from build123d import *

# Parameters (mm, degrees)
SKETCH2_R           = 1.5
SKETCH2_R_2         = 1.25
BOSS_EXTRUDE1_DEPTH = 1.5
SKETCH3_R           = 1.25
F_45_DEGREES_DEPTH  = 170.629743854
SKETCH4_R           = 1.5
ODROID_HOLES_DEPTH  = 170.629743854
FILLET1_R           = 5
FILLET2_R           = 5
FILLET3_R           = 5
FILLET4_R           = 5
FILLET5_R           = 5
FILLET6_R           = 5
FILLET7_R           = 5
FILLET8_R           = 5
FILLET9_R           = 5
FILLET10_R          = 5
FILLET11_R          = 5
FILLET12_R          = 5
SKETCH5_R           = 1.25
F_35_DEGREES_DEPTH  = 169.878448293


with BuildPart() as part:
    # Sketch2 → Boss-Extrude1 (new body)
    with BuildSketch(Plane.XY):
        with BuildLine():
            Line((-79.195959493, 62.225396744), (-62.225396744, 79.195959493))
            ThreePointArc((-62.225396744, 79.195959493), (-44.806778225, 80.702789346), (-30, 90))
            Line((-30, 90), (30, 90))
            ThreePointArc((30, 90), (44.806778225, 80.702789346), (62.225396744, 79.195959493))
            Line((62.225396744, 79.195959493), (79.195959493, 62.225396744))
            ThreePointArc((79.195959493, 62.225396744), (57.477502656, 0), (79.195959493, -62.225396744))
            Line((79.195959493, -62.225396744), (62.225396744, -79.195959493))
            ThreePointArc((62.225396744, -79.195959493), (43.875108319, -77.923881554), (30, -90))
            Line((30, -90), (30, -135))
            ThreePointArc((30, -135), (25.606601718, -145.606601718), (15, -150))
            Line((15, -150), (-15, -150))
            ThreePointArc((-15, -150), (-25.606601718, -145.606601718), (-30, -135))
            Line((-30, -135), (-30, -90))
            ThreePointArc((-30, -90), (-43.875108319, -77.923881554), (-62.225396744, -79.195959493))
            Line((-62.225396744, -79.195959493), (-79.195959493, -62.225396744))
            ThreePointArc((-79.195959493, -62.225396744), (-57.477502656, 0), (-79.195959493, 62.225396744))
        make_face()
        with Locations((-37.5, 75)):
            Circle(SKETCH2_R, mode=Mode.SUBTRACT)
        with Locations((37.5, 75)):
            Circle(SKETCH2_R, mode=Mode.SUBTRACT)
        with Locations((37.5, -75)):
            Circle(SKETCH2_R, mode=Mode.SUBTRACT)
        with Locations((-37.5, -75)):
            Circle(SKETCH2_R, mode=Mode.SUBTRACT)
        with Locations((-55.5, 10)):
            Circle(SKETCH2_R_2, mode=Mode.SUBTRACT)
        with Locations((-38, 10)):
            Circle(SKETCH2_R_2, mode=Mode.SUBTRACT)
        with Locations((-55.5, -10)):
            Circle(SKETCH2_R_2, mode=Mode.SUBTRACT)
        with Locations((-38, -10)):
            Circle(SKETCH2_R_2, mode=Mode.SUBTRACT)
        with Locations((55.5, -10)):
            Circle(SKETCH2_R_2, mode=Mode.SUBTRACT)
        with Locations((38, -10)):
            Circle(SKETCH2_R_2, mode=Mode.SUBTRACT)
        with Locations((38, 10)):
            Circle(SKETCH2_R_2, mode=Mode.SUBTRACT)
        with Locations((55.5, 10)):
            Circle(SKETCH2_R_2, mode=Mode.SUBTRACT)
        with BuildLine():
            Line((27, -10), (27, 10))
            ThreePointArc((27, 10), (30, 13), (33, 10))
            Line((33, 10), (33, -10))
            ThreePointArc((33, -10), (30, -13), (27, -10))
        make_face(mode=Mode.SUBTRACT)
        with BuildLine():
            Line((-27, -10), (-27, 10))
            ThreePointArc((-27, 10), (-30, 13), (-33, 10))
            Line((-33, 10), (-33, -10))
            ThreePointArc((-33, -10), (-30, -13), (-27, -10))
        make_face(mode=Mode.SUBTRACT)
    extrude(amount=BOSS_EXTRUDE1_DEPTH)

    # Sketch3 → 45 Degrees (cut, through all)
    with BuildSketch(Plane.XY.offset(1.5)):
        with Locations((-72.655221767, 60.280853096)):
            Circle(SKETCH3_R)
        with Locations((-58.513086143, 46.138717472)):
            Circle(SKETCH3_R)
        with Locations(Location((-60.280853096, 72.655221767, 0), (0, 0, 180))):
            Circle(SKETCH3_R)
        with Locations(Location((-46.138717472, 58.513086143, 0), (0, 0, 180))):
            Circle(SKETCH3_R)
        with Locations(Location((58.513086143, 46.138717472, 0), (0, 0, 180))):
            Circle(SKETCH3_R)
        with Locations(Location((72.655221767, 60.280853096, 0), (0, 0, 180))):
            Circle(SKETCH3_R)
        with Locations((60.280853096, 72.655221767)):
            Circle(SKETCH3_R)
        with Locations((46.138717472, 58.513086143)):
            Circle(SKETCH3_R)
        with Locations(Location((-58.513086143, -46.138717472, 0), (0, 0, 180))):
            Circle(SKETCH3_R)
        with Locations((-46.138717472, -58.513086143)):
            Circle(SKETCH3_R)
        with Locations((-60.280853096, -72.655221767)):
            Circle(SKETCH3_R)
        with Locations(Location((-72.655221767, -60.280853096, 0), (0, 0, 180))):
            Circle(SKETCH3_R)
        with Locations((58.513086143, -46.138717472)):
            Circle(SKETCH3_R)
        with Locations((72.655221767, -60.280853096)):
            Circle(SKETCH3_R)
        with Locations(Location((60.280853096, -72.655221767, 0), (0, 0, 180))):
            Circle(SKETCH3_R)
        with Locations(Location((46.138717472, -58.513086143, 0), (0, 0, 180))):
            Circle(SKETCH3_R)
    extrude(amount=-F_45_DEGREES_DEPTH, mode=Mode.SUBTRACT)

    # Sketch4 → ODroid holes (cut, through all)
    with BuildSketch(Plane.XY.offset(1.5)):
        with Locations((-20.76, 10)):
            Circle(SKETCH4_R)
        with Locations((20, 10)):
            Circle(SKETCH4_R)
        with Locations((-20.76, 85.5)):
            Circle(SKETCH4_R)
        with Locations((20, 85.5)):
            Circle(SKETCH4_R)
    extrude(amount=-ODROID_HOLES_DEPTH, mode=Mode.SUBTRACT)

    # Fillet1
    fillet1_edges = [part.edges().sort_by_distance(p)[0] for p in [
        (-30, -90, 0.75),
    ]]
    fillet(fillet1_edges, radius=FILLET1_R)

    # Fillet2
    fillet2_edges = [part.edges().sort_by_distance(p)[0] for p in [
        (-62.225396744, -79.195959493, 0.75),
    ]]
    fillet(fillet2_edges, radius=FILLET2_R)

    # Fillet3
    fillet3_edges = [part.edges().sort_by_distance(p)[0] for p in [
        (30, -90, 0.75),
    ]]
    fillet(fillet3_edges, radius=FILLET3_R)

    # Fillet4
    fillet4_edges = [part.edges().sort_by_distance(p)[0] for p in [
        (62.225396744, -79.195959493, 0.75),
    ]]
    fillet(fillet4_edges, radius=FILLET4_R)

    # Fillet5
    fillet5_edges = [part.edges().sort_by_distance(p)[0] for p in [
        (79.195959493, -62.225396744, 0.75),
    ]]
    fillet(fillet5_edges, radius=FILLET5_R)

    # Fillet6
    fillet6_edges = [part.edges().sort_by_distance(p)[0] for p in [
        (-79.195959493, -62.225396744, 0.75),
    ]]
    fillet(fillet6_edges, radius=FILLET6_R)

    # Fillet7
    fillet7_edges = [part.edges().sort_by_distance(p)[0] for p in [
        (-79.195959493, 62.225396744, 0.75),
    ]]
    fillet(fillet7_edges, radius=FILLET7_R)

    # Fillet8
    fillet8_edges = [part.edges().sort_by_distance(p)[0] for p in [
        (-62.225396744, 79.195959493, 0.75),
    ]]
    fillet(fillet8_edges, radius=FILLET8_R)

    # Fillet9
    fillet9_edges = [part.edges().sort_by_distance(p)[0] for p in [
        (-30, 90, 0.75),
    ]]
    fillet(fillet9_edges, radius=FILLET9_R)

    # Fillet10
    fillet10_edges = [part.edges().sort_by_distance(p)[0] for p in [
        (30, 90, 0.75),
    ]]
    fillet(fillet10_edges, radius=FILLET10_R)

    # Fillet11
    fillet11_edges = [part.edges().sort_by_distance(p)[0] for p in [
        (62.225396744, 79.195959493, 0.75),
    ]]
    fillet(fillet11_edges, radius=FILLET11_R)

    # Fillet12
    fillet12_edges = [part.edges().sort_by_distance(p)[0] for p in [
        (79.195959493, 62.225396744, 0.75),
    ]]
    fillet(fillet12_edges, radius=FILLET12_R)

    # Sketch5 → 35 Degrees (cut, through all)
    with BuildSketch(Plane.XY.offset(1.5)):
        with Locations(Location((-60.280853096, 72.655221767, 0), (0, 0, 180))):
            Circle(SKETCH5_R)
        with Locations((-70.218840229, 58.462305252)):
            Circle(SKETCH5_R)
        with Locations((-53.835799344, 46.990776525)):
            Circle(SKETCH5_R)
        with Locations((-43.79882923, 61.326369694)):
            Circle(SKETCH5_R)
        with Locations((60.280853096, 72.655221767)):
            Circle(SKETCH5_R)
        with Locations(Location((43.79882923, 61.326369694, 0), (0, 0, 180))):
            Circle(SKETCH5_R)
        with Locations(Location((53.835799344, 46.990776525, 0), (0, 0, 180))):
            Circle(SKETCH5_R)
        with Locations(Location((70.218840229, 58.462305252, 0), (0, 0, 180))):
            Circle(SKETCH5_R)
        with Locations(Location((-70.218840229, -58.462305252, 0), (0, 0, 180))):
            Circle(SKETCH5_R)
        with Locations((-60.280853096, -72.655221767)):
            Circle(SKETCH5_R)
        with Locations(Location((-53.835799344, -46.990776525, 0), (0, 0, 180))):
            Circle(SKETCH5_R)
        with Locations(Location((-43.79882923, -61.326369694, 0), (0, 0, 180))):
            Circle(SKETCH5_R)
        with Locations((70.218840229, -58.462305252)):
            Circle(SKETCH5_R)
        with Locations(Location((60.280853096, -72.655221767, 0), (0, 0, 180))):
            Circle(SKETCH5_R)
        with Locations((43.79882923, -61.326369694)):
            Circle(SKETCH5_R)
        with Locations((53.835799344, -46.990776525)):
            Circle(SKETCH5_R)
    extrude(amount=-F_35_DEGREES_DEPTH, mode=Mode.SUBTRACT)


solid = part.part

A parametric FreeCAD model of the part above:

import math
import FreeCAD as App
import Part
import Sketcher

V = App.Vector
Q = App.Units.Quantity


def edges_at(feature, points):
    """Names of the edges that pass closest to the given points."""
    edges = feature.Shape.Edges
    near = lambda p: min(range(len(edges)), key=lambda i: edges[i].distToShape(Part.Vertex(*p))[0])
    return sorted({f"Edge{near(p) + 1}" for p in points})

doc = App.newDocument("Part")
body = doc.addObject("PartDesign::Body", "Body")

sketch1 = doc.addObject("Sketcher::SketchObject", "Sketch")
body.addObject(sketch1)
sketch1.AttachmentSupport = (doc.XY_Plane, [""])
sketch1.MapMode = "FlatFace"
sketch1.addGeometry(Part.LineSegment(V(-62.2, 79.2, 0), V(-79.2, 62.2, 0)), False)
sketch1.addGeometry(Part.ArcOfCircle(Part.Circle(V(-157.5, 0, 0), V(0, 0, 1), 100), math.radians(-38), math.radians(38)), False)
sketch1.addGeometry(Part.LineSegment(V(-79.2, -62.2, 0), V(-62.2, -79.2, 0)), False)
sketch1.addGeometry(Part.ArcOfCircle(Part.Circle(V(-51.5, -100.7, 0), V(0, 0, 1), 24), math.radians(26), math.radians(116)), False)
sketch1.addGeometry(Part.LineSegment(V(-30, -90, 0), V(-30, -135, 0)), False)
sketch1.addGeometry(Part.ArcOfCircle(Part.Circle(V(-15, -135, 0), V(0, 0, 1), 15), math.radians(180), math.radians(270)), False)
sketch1.addGeometry(Part.LineSegment(V(-15, -150, 0), V(15, -150, 0)), False)
sketch1.addGeometry(Part.ArcOfCircle(Part.Circle(V(15, -135, 0), V(0, 0, 1), 15), math.radians(-90), math.radians(0)), False)
sketch1.addGeometry(Part.LineSegment(V(30, -135, 0), V(30, -90, 0)), False)
sketch1.addGeometry(Part.ArcOfCircle(Part.Circle(V(51.5, -100.7, 0), V(0, 0, 1), 24), math.radians(64), math.radians(154)), False)
sketch1.addGeometry(Part.LineSegment(V(62.2, -79.2, 0), V(79.2, -62.2, 0)), False)
sketch1.addGeometry(Part.ArcOfCircle(Part.Circle(V(157.5, 0, 0), V(0, 0, 1), 100), math.radians(142), math.radians(218)), False)
sketch1.addGeometry(Part.LineSegment(V(79.2, 62.2, 0), V(62.2, 79.2, 0)), False)
sketch1.addGeometry(Part.ArcOfCircle(Part.Circle(V(56.6, 116, 0), V(0, 0, 1), 37.2), math.radians(-136), math.radians(-81)), False)
sketch1.addGeometry(Part.LineSegment(V(30, 90, 0), V(-30, 90, 0)), False)
sketch1.addGeometry(Part.ArcOfCircle(Part.Circle(V(-56.6, 116, 0), V(0, 0, 1), 37.2), math.radians(-99), math.radians(-44)), False)
sketch1.addGeometry(Part.Circle(V(37.5, -75, 0), V(0, 0, 1), 1.5), False)
sketch1.addGeometry(Part.Circle(V(55.5, -10, 0), V(0, 0, 1), 1.2), False)
sketch1.addGeometry(Part.Circle(V(38, -10, 0), V(0, 0, 1), 1.2), False)
sketch1.addGeometry(Part.Circle(V(-37.5, -75, 0), V(0, 0, 1), 1.5), False)
sketch1.addGeometry(Part.Circle(V(-38, -10, 0), V(0, 0, 1), 1.2), False)
sketch1.addGeometry(Part.Circle(V(-55.5, -10, 0), V(0, 0, 1), 1.2), False)
sketch1.addGeometry(Part.Circle(V(55.5, 10, 0), V(0, 0, 1), 1.2), False)
sketch1.addGeometry(Part.LineSegment(V(27, -10, 0), V(27, 10, 0)), False)
sketch1.addGeometry(Part.ArcOfCircle(Part.Circle(V(30, 10, 0), V(0, 0, 1), 3), math.radians(0), math.radians(180)), False)
sketch1.addGeometry(Part.LineSegment(V(33, 10, 0), V(33, -10, 0)), False)
sketch1.addGeometry(Part.ArcOfCircle(Part.Circle(V(30, -10, 0), V(0, 0, 1), 3), math.radians(180), math.radians(360)), False)
sketch1.addGeometry(Part.Circle(V(38, 10, 0), V(0, 0, 1), 1.2), False)
sketch1.addGeometry(Part.Circle(V(37.5, 75, 0), V(0, 0, 1), 1.5), False)
sketch1.addGeometry(Part.ArcOfCircle(Part.Circle(V(-30, -10, 0), V(0, 0, 1), 3), math.radians(180), math.radians(360)), False)
sketch1.addGeometry(Part.LineSegment(V(-33, -10, 0), V(-33, 10, 0)), False)
sketch1.addGeometry(Part.ArcOfCircle(Part.Circle(V(-30, 10, 0), V(0, 0, 1), 3), math.radians(0), math.radians(180)), False)
sketch1.addGeometry(Part.LineSegment(V(-27, 10, 0), V(-27, -10, 0)), False)
sketch1.addGeometry(Part.Circle(V(-38, 10, 0), V(0, 0, 1), 1.2), False)
sketch1.addGeometry(Part.Circle(V(-55.5, 10, 0), V(0, 0, 1), 1.2), False)
sketch1.addGeometry(Part.Circle(V(-37.5, 75, 0), V(0, 0, 1), 1.5), False)
sketch1.addConstraint(Sketcher.Constraint("Coincident", 0, 2, 1, 2))
sketch1.addConstraint(Sketcher.Constraint("Coincident", 1, 1, 2, 1))
sketch1.addConstraint(Sketcher.Constraint("Coincident", 2, 2, 3, 2))
sketch1.addConstraint(Sketcher.Constraint("Coincident", 3, 1, 4, 1))
sketch1.addConstraint(Sketcher.Constraint("Tangent", 4, 2, 5, 1))
sketch1.addConstraint(Sketcher.Constraint("Tangent", 5, 2, 6, 1))
sketch1.addConstraint(Sketcher.Constraint("Tangent", 6, 2, 7, 1))
sketch1.addConstraint(Sketcher.Constraint("Tangent", 7, 2, 8, 1))
sketch1.addConstraint(Sketcher.Constraint("Coincident", 8, 2, 9, 2))
sketch1.addConstraint(Sketcher.Constraint("Coincident", 9, 1, 10, 1))
sketch1.addConstraint(Sketcher.Constraint("Coincident", 10, 2, 11, 2))
sketch1.addConstraint(Sketcher.Constraint("Coincident", 11, 1, 12, 1))
sketch1.addConstraint(Sketcher.Constraint("Coincident", 12, 2, 13, 2))
sketch1.addConstraint(Sketcher.Constraint("Coincident", 13, 1, 14, 1))
sketch1.addConstraint(Sketcher.Constraint("Coincident", 14, 2, 15, 2))
sketch1.addConstraint(Sketcher.Constraint("Coincident", 15, 1, 0, 1))
sketch1.addConstraint(Sketcher.Constraint("Tangent", 23, 2, 24, 2))
sketch1.addConstraint(Sketcher.Constraint("Tangent", 24, 1, 25, 1))
sketch1.addConstraint(Sketcher.Constraint("Tangent", 25, 2, 26, 2))
sketch1.addConstraint(Sketcher.Constraint("Tangent", 26, 1, 23, 1))
sketch1.addConstraint(Sketcher.Constraint("Tangent", 29, 1, 30, 1))
sketch1.addConstraint(Sketcher.Constraint("Tangent", 30, 2, 31, 2))
sketch1.addConstraint(Sketcher.Constraint("Tangent", 31, 1, 32, 1))
sketch1.addConstraint(Sketcher.Constraint("Tangent", 32, 2, 29, 2))
sketch1.addConstraint(Sketcher.Constraint("Vertical", 4))
sketch1.addConstraint(Sketcher.Constraint("Horizontal", 6))
sketch1.addConstraint(Sketcher.Constraint("Vertical", 8))
sketch1.addConstraint(Sketcher.Constraint("Horizontal", 14))
sketch1.addConstraint(Sketcher.Constraint("Vertical", 23))
sketch1.addConstraint(Sketcher.Constraint("Vertical", 25))
sketch1.addConstraint(Sketcher.Constraint("Vertical", 30))
sketch1.addConstraint(Sketcher.Constraint("Vertical", 32))
sketch1.addConstraint(Sketcher.Constraint("Equal", 5, 7))
sketch1.addConstraint(Sketcher.Constraint("Equal", 3, 9))
sketch1.addConstraint(Sketcher.Constraint("Equal", 1, 11))
sketch1.addConstraint(Sketcher.Constraint("Equal", 13, 15))
sketch1.addConstraint(Sketcher.Constraint("Equal", 17, 18))
sketch1.addConstraint(Sketcher.Constraint("Equal", 16, 19))
sketch1.addConstraint(Sketcher.Constraint("Equal", 18, 20))
sketch1.addConstraint(Sketcher.Constraint("Equal", 20, 21))
sketch1.addConstraint(Sketcher.Constraint("Equal", 21, 22))
sketch1.addConstraint(Sketcher.Constraint("Equal", 22, 27))
sketch1.addConstraint(Sketcher.Constraint("Equal", 19, 28))
sketch1.addConstraint(Sketcher.Constraint("Equal", 26, 29))
sketch1.addConstraint(Sketcher.Constraint("Equal", 27, 33))
sketch1.addConstraint(Sketcher.Constraint("Equal", 33, 34))
sketch1.addConstraint(Sketcher.Constraint("Equal", 28, 35))
sketch1.addConstraint(Sketcher.Constraint("Symmetric", 1, 3, 11, 3, -1, 1))
sketch1.addConstraint(Sketcher.Constraint("Symmetric", 21, 3, 22, 3, -1, 1))
sketch1.addConstraint(Sketcher.Constraint("Symmetric", 20, 3, 27, 3, -1, 1))
sketch1.addConstraint(Sketcher.Constraint("Symmetric", 19, 3, 28, 3, -1, 1))
sketch1.addConstraint(Sketcher.Constraint("Symmetric", 24, 3, 29, 3, -1, 1))
sketch1.addConstraint(Sketcher.Constraint("Symmetric", 18, 3, 33, 3, -1, 1))
sketch1.addConstraint(Sketcher.Constraint("Symmetric", 17, 3, 34, 3, -1, 1))
sketch1.addConstraint(Sketcher.Constraint("Symmetric", 16, 3, 35, 3, -1, 1))
sketch1.addConstraint(Sketcher.Constraint("Symmetric", 2, 2, 12, 2, -1, 1))
sketch1.addConstraint(Sketcher.Constraint("Symmetric", 3, 1, 13, 1, -1, 1))
sketch1.addConstraint(Sketcher.Constraint("Symmetric", 8, 2, 14, 2, -1, 1))
sketch1.addConstraint(Sketcher.Constraint("Symmetric", 9, 1, 15, 1, -1, 1))
sketch1.addConstraint(Sketcher.Constraint("Symmetric", 3, 3, 9, 3, -2))
sketch1.addConstraint(Sketcher.Constraint("Symmetric", 16, 3, 19, 3, -2))
sketch1.addConstraint(Sketcher.Constraint("Symmetric", 18, 3, 20, 3, -2))
sketch1.addConstraint(Sketcher.Constraint("Symmetric", 17, 3, 21, 3, -2))
sketch1.addConstraint(Sketcher.Constraint("Symmetric", 1, 1, 10, 2, -2))
sketch1.addConstraint(Sketcher.Constraint("Perpendicular", 0, 2))
sketch1.addConstraint(Sketcher.Constraint("Perpendicular", 2, 10))
sketch1.addConstraint(Sketcher.Constraint("Perpendicular", 10, 12))
sketch1.addConstraint(Sketcher.Constraint("Horizontal", 13, 3, 15, 3))
sketch1.addConstraint(Sketcher.Constraint("Horizontal", 17, 3, 18, 3))
sketch1.addConstraint(Sketcher.Constraint("Horizontal", 22, 3, 24, 3))
sketch1.addConstraint(Sketcher.Constraint("Horizontal", 21, 3, 26, 3))
sketch1.addConstraint(Sketcher.Constraint("Horizontal", 27, 3, 31, 3))
sketch1.addConstraint(Sketcher.Constraint("Vertical", 31, 3, 3, 1))
sketch1.addConstraint(Sketcher.Constraint("Diameter", 16, Q("3 mm")))
sketch1.addConstraint(Sketcher.Constraint("Radius", 1, Q("100 mm")))
sketch1.addConstraint(Sketcher.Constraint("Radius", 5, Q("15 mm")))
sketch1.addConstraint(Sketcher.Constraint("Radius", 24, Q("3 mm")))
sketch1.addConstraint(Sketcher.Constraint("Diameter", 17, Q("2.5 mm")))
sketch1.addConstraint(Sketcher.Constraint("DistanceX", 6, 1, 6, 2, Q("30 mm")))
sketch1.addConstraint(Sketcher.Constraint("DistanceY", 4, 2, 4, 1, Q("45 mm")))
sketch1.addConstraint(Sketcher.Constraint("DistanceY", 23, 1, 23, 2, Q("20 mm")))
sketch1.addConstraint(Sketcher.Constraint("Distance", 0, Q("24 mm")))
sketch1.addConstraint(Sketcher.Constraint("DistanceY", 5, 3, -1, 1, Q("135 mm")))
sketch1.addConstraint(Sketcher.Constraint("DistanceY", 16, 3, -1, 1, Q("75 mm")))
sketch1.addConstraint(Sketcher.Constraint("DistanceX", -1, 1, 18, 3, Q("38 mm")))
sketch1.addConstraint(Sketcher.Constraint("DistanceX", 16, 3, 17, 3, Q("18 mm")))
sketch1.addConstraint(Sketcher.Constraint("DistanceX", 19, 3, 16, 3, Q("75 mm")))
sketch1.addConstraint(Sketcher.Constraint("Radius", 3, Q("24.033346 mm")))
sketch1.addConstraint(Sketcher.Constraint("Radius", 13, Q("37.202804 mm")))
sketch1.addConstraint(Sketcher.Constraint("DistanceX", 3, 3, -1, 1, Q("51.514719 mm")))
sketch1.addConstraint(Sketcher.Constraint("DistanceX", 0, 2, -1, 1, Q("79.195959 mm")))
pad1 = doc.addObject("PartDesign::Pad", "Pad")
body.addObject(pad1)
pad1.Profile = sketch1
pad1.Length = 1.5

sketch2 = doc.addObject("Sketcher::SketchObject", "Sketch001")
body.addObject(sketch2)
sketch2.AttachmentSupport = (doc.XY_Plane, [""])
sketch2.MapMode = "FlatFace"
sketch2.AttachmentOffset = App.Placement(V(0, 0, 1.5), App.Rotation())
sketch2.addGeometry(Part.Circle(V(-72.7, 60.3, 0), V(0, 0, 1), 1.2), False)
sketch2.addGeometry(Part.Circle(V(-58.5, 46.1, 0), V(0, 0, 1), 1.2), False)
sketch2.addGeometry(Part.Circle(V(-60.3, 72.7, 0), V(0, 0, 1), 1.2), False)
sketch2.addGeometry(Part.Circle(V(-46.1, 58.5, 0), V(0, 0, 1), 1.2), False)
sketch2.addGeometry(Part.Circle(V(58.5, 46.1, 0), V(0, 0, 1), 1.2), False)
sketch2.addGeometry(Part.Circle(V(72.7, 60.3, 0), V(0, 0, 1), 1.2), False)
sketch2.addGeometry(Part.Circle(V(60.3, 72.7, 0), V(0, 0, 1), 1.2), False)
sketch2.addGeometry(Part.Circle(V(46.1, 58.5, 0), V(0, 0, 1), 1.2), False)
sketch2.addGeometry(Part.Circle(V(-58.5, -46.1, 0), V(0, 0, 1), 1.2), False)
sketch2.addGeometry(Part.Circle(V(-46.1, -58.5, 0), V(0, 0, 1), 1.2), False)
sketch2.addGeometry(Part.Circle(V(-60.3, -72.7, 0), V(0, 0, 1), 1.2), False)
sketch2.addGeometry(Part.Circle(V(-72.7, -60.3, 0), V(0, 0, 1), 1.2), False)
sketch2.addGeometry(Part.Circle(V(58.5, -46.1, 0), V(0, 0, 1), 1.2), False)
sketch2.addGeometry(Part.Circle(V(72.7, -60.3, 0), V(0, 0, 1), 1.2), False)
sketch2.addGeometry(Part.Circle(V(60.3, -72.7, 0), V(0, 0, 1), 1.2), False)
sketch2.addGeometry(Part.Circle(V(46.1, -58.5, 0), V(0, 0, 1), 1.2), False)
sketch2.addConstraint(Sketcher.Constraint("Equal", 0, 1))
sketch2.addConstraint(Sketcher.Constraint("Equal", 1, 2))
sketch2.addConstraint(Sketcher.Constraint("Equal", 2, 3))
sketch2.addConstraint(Sketcher.Constraint("Equal", 3, 4))
sketch2.addConstraint(Sketcher.Constraint("Equal", 4, 5))
sketch2.addConstraint(Sketcher.Constraint("Equal", 5, 6))
sketch2.addConstraint(Sketcher.Constraint("Equal", 6, 7))
sketch2.addConstraint(Sketcher.Constraint("Equal", 7, 8))
sketch2.addConstraint(Sketcher.Constraint("Equal", 8, 9))
sketch2.addConstraint(Sketcher.Constraint("Equal", 9, 10))
sketch2.addConstraint(Sketcher.Constraint("Equal", 10, 11))
sketch2.addConstraint(Sketcher.Constraint("Equal", 11, 12))
sketch2.addConstraint(Sketcher.Constraint("Equal", 12, 13))
sketch2.addConstraint(Sketcher.Constraint("Equal", 13, 14))
sketch2.addConstraint(Sketcher.Constraint("Equal", 14, 15))
sketch2.addConstraint(Sketcher.Constraint("Symmetric", 4, 3, 8, 3, -1, 1))
sketch2.addConstraint(Sketcher.Constraint("Symmetric", 7, 3, 9, 3, -1, 1))
sketch2.addConstraint(Sketcher.Constraint("Symmetric", 6, 3, 10, 3, -1, 1))
sketch2.addConstraint(Sketcher.Constraint("Symmetric", 5, 3, 11, 3, -1, 1))
sketch2.addConstraint(Sketcher.Constraint("Symmetric", 1, 3, 12, 3, -1, 1))
sketch2.addConstraint(Sketcher.Constraint("Symmetric", 0, 3, 13, 3, -1, 1))
sketch2.addConstraint(Sketcher.Constraint("Symmetric", 2, 3, 14, 3, -1, 1))
sketch2.addConstraint(Sketcher.Constraint("Symmetric", 3, 3, 15, 3, -1, 1))
sketch2.addConstraint(Sketcher.Constraint("Symmetric", 1, 3, 4, 3, -2))
sketch2.addConstraint(Sketcher.Constraint("Symmetric", 0, 3, 5, 3, -2))
sketch2.addConstraint(Sketcher.Constraint("Symmetric", 2, 3, 6, 3, -2))
sketch2.addConstraint(Sketcher.Constraint("Symmetric", 3, 3, 7, 3, -2))
sketch2.addConstraint(Sketcher.Constraint("Diameter", 0, Q("2.5 mm")))
sketch2.addConstraint(Sketcher.Constraint("DistanceX", 0, 3, -1, 1, Q("72.655222 mm")))
sketch2.addConstraint(Sketcher.Constraint("DistanceY", -1, 1, 2, 3, Q("72.655222 mm")))
sketch2.addConstraint(Sketcher.Constraint("DistanceX", 0, 3, 2, 3, Q("12.374369 mm")))
sketch2.addConstraint(Sketcher.Constraint("DistanceY", 0, 3, 2, 3, Q("12.374369 mm")))
sketch2.addConstraint(Sketcher.Constraint("DistanceX", 1, 3, 3, 3, Q("12.374369 mm")))
sketch2.addConstraint(Sketcher.Constraint("DistanceY", 1, 3, 3, 3, Q("12.374369 mm")))
sketch2.addConstraint(Sketcher.Constraint("DistanceX", 2, 3, 4, 3, Q("118.793939 mm")))
sketch2.addConstraint(Sketcher.Constraint("DistanceY", 8, 3, 0, 3, Q("106.419571 mm")))
pocket1 = doc.addObject("PartDesign::Pocket", "Pocket")
body.addObject(pocket1)
pocket1.Profile = sketch2
pocket1.Type = "ThroughAll"

sketch3 = doc.addObject("Sketcher::SketchObject", "Sketch002")
body.addObject(sketch3)
sketch3.AttachmentSupport = (doc.XY_Plane, [""])
sketch3.MapMode = "FlatFace"
sketch3.AttachmentOffset = App.Placement(V(0, 0, 1.5), App.Rotation())
sketch3.addGeometry(Part.Circle(V(-20.8, 10, 0), V(0, 0, 1), 1.5), False)
sketch3.addGeometry(Part.Circle(V(20, 10, 0), V(0, 0, 1), 1.5), False)
sketch3.addGeometry(Part.Circle(V(-20.8, 85.5, 0), V(0, 0, 1), 1.5), False)
sketch3.addGeometry(Part.Circle(V(20, 85.5, 0), V(0, 0, 1), 1.5), False)
sketch3.addConstraint(Sketcher.Constraint("Equal", 0, 1))
sketch3.addConstraint(Sketcher.Constraint("Equal", 1, 2))
sketch3.addConstraint(Sketcher.Constraint("Equal", 2, 3))
sketch3.addConstraint(Sketcher.Constraint("Horizontal", 0, 3, 1, 3))
sketch3.addConstraint(Sketcher.Constraint("Horizontal", 2, 3, 3, 3))
sketch3.addConstraint(Sketcher.Constraint("Vertical", 0, 3, 2, 3))
sketch3.addConstraint(Sketcher.Constraint("Vertical", 1, 3, 3, 3))
sketch3.addConstraint(Sketcher.Constraint("Diameter", 0, Q("3 mm")))
sketch3.addConstraint(Sketcher.Constraint("DistanceY", -1, 1, 0, 3, Q("10 mm")))
sketch3.addConstraint(Sketcher.Constraint("DistanceX", -1, 1, 1, 3, Q("20 mm")))
sketch3.addConstraint(Sketcher.Constraint("DistanceY", -1, 1, 2, 3, Q("85.5 mm")))
sketch3.addConstraint(Sketcher.Constraint("DistanceX", 0, 3, -1, 1, Q("20.76 mm")))
pocket2 = doc.addObject("PartDesign::Pocket", "Pocket001")
body.addObject(pocket2)
pocket2.Profile = sketch3
pocket2.Type = "ThroughAll"
doc.recompute()

fillet = doc.addObject("PartDesign::Fillet", "Fillet")
body.addObject(fillet)
fillet.Base = (pocket2, edges_at(pocket2, [(-30, -90, 0.75)]))
fillet.Radius = 5
doc.recompute()

fillet2 = doc.addObject("PartDesign::Fillet", "Fillet001")
body.addObject(fillet2)
fillet2.Base = (fillet, edges_at(fillet, [(-62.225, -79.196, 0.75)]))
fillet2.Radius = 5
doc.recompute()

fillet3 = doc.addObject("PartDesign::Fillet", "Fillet002")
body.addObject(fillet3)
fillet3.Base = (fillet2, edges_at(fillet2, [(30, -90, 0.75)]))
fillet3.Radius = 5
doc.recompute()

fillet4 = doc.addObject("PartDesign::Fillet", "Fillet003")
body.addObject(fillet4)
fillet4.Base = (fillet3, edges_at(fillet3, [(62.225, -79.196, 0.75)]))
fillet4.Radius = 5
doc.recompute()

fillet5 = doc.addObject("PartDesign::Fillet", "Fillet004")
body.addObject(fillet5)
fillet5.Base = (fillet4, edges_at(fillet4, [(79.196, -62.225, 0.75)]))
fillet5.Radius = 5
doc.recompute()

fillet6 = doc.addObject("PartDesign::Fillet", "Fillet005")
body.addObject(fillet6)
fillet6.Base = (fillet5, edges_at(fillet5, [(-79.196, -62.225, 0.75)]))
fillet6.Radius = 5
doc.recompute()

fillet7 = doc.addObject("PartDesign::Fillet", "Fillet006")
body.addObject(fillet7)
fillet7.Base = (fillet6, edges_at(fillet6, [(-79.196, 62.225, 0.75)]))
fillet7.Radius = 5
doc.recompute()

fillet8 = doc.addObject("PartDesign::Fillet", "Fillet007")
body.addObject(fillet8)
fillet8.Base = (fillet7, edges_at(fillet7, [(-62.225, 79.196, 0.75)]))
fillet8.Radius = 5
doc.recompute()

fillet9 = doc.addObject("PartDesign::Fillet", "Fillet008")
body.addObject(fillet9)
fillet9.Base = (fillet8, edges_at(fillet8, [(-30, 90, 0.75)]))
fillet9.Radius = 5
doc.recompute()

fillet10 = doc.addObject("PartDesign::Fillet", "Fillet009")
body.addObject(fillet10)
fillet10.Base = (fillet9, edges_at(fillet9, [(30, 90, 0.75)]))
fillet10.Radius = 5
doc.recompute()

fillet11 = doc.addObject("PartDesign::Fillet", "Fillet010")
body.addObject(fillet11)
fillet11.Base = (fillet10, edges_at(fillet10, [(62.225, 79.196, 0.75)]))
fillet11.Radius = 5
doc.recompute()

fillet12 = doc.addObject("PartDesign::Fillet", "Fillet011")
body.addObject(fillet12)
fillet12.Base = (fillet11, edges_at(fillet11, [(79.196, 62.225, 0.75)]))
fillet12.Radius = 5

sketch4 = doc.addObject("Sketcher::SketchObject", "Sketch003")
body.addObject(sketch4)
sketch4.AttachmentSupport = (doc.XY_Plane, [""])
sketch4.MapMode = "FlatFace"
sketch4.AttachmentOffset = App.Placement(V(0, 0, 1.5), App.Rotation())
sketch4.addGeometry(Part.Circle(V(-60.3, 72.7, 0), V(0, 0, 1), 1.2), False)
sketch4.addGeometry(Part.Circle(V(-70.2, 58.5, 0), V(0, 0, 1), 1.2), False)
sketch4.addGeometry(Part.Circle(V(-53.8, 47, 0), V(0, 0, 1), 1.2), False)
sketch4.addGeometry(Part.Circle(V(-43.8, 61.3, 0), V(0, 0, 1), 1.2), False)
sketch4.addGeometry(Part.Circle(V(60.3, 72.7, 0), V(0, 0, 1), 1.2), False)
sketch4.addGeometry(Part.Circle(V(43.8, 61.3, 0), V(0, 0, 1), 1.2), False)
sketch4.addGeometry(Part.Circle(V(53.8, 47, 0), V(0, 0, 1), 1.2), False)
sketch4.addGeometry(Part.Circle(V(70.2, 58.5, 0), V(0, 0, 1), 1.2), False)
sketch4.addGeometry(Part.Circle(V(-70.2, -58.5, 0), V(0, 0, 1), 1.2), False)
sketch4.addGeometry(Part.Circle(V(-60.3, -72.7, 0), V(0, 0, 1), 1.2), False)
sketch4.addGeometry(Part.Circle(V(-53.8, -47, 0), V(0, 0, 1), 1.2), False)
sketch4.addGeometry(Part.Circle(V(-43.8, -61.3, 0), V(0, 0, 1), 1.2), False)
sketch4.addGeometry(Part.Circle(V(70.2, -58.5, 0), V(0, 0, 1), 1.2), False)
sketch4.addGeometry(Part.Circle(V(60.3, -72.7, 0), V(0, 0, 1), 1.2), False)
sketch4.addGeometry(Part.Circle(V(43.8, -61.3, 0), V(0, 0, 1), 1.2), False)
sketch4.addGeometry(Part.Circle(V(53.8, -47, 0), V(0, 0, 1), 1.2), False)
sketch4.addConstraint(Sketcher.Constraint("Equal", 0, 1))
sketch4.addConstraint(Sketcher.Constraint("Equal", 1, 2))
sketch4.addConstraint(Sketcher.Constraint("Equal", 2, 3))
sketch4.addConstraint(Sketcher.Constraint("Equal", 3, 4))
sketch4.addConstraint(Sketcher.Constraint("Equal", 4, 5))
sketch4.addConstraint(Sketcher.Constraint("Equal", 5, 6))
sketch4.addConstraint(Sketcher.Constraint("Equal", 6, 7))
sketch4.addConstraint(Sketcher.Constraint("Equal", 7, 8))
sketch4.addConstraint(Sketcher.Constraint("Equal", 8, 9))
sketch4.addConstraint(Sketcher.Constraint("Equal", 9, 10))
sketch4.addConstraint(Sketcher.Constraint("Equal", 10, 11))
sketch4.addConstraint(Sketcher.Constraint("Equal", 11, 12))
sketch4.addConstraint(Sketcher.Constraint("Equal", 12, 13))
sketch4.addConstraint(Sketcher.Constraint("Equal", 13, 14))
sketch4.addConstraint(Sketcher.Constraint("Equal", 14, 15))
sketch4.addConstraint(Sketcher.Constraint("Symmetric", 7, 3, 8, 3, -1, 1))
sketch4.addConstraint(Sketcher.Constraint("Symmetric", 4, 3, 9, 3, -1, 1))
sketch4.addConstraint(Sketcher.Constraint("Symmetric", 6, 3, 10, 3, -1, 1))
sketch4.addConstraint(Sketcher.Constraint("Symmetric", 5, 3, 11, 3, -1, 1))
sketch4.addConstraint(Sketcher.Constraint("Symmetric", 1, 3, 12, 3, -1, 1))
sketch4.addConstraint(Sketcher.Constraint("Symmetric", 0, 3, 13, 3, -1, 1))
sketch4.addConstraint(Sketcher.Constraint("Symmetric", 3, 3, 14, 3, -1, 1))
sketch4.addConstraint(Sketcher.Constraint("Symmetric", 2, 3, 15, 3, -1, 1))
sketch4.addConstraint(Sketcher.Constraint("Symmetric", 0, 3, 4, 3, -2))
sketch4.addConstraint(Sketcher.Constraint("Symmetric", 3, 3, 5, 3, -2))
sketch4.addConstraint(Sketcher.Constraint("Symmetric", 2, 3, 6, 3, -2))
sketch4.addConstraint(Sketcher.Constraint("Symmetric", 1, 3, 7, 3, -2))
sketch4.addConstraint(Sketcher.Constraint("Diameter", 0, Q("2.5 mm")))
sketch4.addConstraint(Sketcher.Constraint("DistanceY", 9, 3, 2, 3, Q("119.645998 mm")))
sketch4.addConstraint(Sketcher.Constraint("DistanceX", 2, 3, -1, 1, Q("53.835799 mm")))
sketch4.addConstraint(Sketcher.Constraint("DistanceY", -1, 1, 0, 3, Q("72.655222 mm")))
sketch4.addConstraint(Sketcher.Constraint("DistanceX", 1, 3, -1, 1, Q("70.21884 mm")))
sketch4.addConstraint(Sketcher.Constraint("DistanceX", 3, 3, -1, 1, Q("43.798829 mm")))
sketch4.addConstraint(Sketcher.Constraint("DistanceY", -1, 1, 3, 3, Q("61.32637 mm")))
sketch4.addConstraint(Sketcher.Constraint("DistanceY", 2, 3, 1, 3, Q("11.471529 mm")))
sketch4.addConstraint(Sketcher.Constraint("DistanceX", 0, 3, -1, 1, Q("60.280853 mm")))
pocket3 = doc.addObject("PartDesign::Pocket", "Pocket002")
body.addObject(pocket3)
pocket3.Profile = sketch4
pocket3.Type = "ThroughAll"

doc.recompute()
